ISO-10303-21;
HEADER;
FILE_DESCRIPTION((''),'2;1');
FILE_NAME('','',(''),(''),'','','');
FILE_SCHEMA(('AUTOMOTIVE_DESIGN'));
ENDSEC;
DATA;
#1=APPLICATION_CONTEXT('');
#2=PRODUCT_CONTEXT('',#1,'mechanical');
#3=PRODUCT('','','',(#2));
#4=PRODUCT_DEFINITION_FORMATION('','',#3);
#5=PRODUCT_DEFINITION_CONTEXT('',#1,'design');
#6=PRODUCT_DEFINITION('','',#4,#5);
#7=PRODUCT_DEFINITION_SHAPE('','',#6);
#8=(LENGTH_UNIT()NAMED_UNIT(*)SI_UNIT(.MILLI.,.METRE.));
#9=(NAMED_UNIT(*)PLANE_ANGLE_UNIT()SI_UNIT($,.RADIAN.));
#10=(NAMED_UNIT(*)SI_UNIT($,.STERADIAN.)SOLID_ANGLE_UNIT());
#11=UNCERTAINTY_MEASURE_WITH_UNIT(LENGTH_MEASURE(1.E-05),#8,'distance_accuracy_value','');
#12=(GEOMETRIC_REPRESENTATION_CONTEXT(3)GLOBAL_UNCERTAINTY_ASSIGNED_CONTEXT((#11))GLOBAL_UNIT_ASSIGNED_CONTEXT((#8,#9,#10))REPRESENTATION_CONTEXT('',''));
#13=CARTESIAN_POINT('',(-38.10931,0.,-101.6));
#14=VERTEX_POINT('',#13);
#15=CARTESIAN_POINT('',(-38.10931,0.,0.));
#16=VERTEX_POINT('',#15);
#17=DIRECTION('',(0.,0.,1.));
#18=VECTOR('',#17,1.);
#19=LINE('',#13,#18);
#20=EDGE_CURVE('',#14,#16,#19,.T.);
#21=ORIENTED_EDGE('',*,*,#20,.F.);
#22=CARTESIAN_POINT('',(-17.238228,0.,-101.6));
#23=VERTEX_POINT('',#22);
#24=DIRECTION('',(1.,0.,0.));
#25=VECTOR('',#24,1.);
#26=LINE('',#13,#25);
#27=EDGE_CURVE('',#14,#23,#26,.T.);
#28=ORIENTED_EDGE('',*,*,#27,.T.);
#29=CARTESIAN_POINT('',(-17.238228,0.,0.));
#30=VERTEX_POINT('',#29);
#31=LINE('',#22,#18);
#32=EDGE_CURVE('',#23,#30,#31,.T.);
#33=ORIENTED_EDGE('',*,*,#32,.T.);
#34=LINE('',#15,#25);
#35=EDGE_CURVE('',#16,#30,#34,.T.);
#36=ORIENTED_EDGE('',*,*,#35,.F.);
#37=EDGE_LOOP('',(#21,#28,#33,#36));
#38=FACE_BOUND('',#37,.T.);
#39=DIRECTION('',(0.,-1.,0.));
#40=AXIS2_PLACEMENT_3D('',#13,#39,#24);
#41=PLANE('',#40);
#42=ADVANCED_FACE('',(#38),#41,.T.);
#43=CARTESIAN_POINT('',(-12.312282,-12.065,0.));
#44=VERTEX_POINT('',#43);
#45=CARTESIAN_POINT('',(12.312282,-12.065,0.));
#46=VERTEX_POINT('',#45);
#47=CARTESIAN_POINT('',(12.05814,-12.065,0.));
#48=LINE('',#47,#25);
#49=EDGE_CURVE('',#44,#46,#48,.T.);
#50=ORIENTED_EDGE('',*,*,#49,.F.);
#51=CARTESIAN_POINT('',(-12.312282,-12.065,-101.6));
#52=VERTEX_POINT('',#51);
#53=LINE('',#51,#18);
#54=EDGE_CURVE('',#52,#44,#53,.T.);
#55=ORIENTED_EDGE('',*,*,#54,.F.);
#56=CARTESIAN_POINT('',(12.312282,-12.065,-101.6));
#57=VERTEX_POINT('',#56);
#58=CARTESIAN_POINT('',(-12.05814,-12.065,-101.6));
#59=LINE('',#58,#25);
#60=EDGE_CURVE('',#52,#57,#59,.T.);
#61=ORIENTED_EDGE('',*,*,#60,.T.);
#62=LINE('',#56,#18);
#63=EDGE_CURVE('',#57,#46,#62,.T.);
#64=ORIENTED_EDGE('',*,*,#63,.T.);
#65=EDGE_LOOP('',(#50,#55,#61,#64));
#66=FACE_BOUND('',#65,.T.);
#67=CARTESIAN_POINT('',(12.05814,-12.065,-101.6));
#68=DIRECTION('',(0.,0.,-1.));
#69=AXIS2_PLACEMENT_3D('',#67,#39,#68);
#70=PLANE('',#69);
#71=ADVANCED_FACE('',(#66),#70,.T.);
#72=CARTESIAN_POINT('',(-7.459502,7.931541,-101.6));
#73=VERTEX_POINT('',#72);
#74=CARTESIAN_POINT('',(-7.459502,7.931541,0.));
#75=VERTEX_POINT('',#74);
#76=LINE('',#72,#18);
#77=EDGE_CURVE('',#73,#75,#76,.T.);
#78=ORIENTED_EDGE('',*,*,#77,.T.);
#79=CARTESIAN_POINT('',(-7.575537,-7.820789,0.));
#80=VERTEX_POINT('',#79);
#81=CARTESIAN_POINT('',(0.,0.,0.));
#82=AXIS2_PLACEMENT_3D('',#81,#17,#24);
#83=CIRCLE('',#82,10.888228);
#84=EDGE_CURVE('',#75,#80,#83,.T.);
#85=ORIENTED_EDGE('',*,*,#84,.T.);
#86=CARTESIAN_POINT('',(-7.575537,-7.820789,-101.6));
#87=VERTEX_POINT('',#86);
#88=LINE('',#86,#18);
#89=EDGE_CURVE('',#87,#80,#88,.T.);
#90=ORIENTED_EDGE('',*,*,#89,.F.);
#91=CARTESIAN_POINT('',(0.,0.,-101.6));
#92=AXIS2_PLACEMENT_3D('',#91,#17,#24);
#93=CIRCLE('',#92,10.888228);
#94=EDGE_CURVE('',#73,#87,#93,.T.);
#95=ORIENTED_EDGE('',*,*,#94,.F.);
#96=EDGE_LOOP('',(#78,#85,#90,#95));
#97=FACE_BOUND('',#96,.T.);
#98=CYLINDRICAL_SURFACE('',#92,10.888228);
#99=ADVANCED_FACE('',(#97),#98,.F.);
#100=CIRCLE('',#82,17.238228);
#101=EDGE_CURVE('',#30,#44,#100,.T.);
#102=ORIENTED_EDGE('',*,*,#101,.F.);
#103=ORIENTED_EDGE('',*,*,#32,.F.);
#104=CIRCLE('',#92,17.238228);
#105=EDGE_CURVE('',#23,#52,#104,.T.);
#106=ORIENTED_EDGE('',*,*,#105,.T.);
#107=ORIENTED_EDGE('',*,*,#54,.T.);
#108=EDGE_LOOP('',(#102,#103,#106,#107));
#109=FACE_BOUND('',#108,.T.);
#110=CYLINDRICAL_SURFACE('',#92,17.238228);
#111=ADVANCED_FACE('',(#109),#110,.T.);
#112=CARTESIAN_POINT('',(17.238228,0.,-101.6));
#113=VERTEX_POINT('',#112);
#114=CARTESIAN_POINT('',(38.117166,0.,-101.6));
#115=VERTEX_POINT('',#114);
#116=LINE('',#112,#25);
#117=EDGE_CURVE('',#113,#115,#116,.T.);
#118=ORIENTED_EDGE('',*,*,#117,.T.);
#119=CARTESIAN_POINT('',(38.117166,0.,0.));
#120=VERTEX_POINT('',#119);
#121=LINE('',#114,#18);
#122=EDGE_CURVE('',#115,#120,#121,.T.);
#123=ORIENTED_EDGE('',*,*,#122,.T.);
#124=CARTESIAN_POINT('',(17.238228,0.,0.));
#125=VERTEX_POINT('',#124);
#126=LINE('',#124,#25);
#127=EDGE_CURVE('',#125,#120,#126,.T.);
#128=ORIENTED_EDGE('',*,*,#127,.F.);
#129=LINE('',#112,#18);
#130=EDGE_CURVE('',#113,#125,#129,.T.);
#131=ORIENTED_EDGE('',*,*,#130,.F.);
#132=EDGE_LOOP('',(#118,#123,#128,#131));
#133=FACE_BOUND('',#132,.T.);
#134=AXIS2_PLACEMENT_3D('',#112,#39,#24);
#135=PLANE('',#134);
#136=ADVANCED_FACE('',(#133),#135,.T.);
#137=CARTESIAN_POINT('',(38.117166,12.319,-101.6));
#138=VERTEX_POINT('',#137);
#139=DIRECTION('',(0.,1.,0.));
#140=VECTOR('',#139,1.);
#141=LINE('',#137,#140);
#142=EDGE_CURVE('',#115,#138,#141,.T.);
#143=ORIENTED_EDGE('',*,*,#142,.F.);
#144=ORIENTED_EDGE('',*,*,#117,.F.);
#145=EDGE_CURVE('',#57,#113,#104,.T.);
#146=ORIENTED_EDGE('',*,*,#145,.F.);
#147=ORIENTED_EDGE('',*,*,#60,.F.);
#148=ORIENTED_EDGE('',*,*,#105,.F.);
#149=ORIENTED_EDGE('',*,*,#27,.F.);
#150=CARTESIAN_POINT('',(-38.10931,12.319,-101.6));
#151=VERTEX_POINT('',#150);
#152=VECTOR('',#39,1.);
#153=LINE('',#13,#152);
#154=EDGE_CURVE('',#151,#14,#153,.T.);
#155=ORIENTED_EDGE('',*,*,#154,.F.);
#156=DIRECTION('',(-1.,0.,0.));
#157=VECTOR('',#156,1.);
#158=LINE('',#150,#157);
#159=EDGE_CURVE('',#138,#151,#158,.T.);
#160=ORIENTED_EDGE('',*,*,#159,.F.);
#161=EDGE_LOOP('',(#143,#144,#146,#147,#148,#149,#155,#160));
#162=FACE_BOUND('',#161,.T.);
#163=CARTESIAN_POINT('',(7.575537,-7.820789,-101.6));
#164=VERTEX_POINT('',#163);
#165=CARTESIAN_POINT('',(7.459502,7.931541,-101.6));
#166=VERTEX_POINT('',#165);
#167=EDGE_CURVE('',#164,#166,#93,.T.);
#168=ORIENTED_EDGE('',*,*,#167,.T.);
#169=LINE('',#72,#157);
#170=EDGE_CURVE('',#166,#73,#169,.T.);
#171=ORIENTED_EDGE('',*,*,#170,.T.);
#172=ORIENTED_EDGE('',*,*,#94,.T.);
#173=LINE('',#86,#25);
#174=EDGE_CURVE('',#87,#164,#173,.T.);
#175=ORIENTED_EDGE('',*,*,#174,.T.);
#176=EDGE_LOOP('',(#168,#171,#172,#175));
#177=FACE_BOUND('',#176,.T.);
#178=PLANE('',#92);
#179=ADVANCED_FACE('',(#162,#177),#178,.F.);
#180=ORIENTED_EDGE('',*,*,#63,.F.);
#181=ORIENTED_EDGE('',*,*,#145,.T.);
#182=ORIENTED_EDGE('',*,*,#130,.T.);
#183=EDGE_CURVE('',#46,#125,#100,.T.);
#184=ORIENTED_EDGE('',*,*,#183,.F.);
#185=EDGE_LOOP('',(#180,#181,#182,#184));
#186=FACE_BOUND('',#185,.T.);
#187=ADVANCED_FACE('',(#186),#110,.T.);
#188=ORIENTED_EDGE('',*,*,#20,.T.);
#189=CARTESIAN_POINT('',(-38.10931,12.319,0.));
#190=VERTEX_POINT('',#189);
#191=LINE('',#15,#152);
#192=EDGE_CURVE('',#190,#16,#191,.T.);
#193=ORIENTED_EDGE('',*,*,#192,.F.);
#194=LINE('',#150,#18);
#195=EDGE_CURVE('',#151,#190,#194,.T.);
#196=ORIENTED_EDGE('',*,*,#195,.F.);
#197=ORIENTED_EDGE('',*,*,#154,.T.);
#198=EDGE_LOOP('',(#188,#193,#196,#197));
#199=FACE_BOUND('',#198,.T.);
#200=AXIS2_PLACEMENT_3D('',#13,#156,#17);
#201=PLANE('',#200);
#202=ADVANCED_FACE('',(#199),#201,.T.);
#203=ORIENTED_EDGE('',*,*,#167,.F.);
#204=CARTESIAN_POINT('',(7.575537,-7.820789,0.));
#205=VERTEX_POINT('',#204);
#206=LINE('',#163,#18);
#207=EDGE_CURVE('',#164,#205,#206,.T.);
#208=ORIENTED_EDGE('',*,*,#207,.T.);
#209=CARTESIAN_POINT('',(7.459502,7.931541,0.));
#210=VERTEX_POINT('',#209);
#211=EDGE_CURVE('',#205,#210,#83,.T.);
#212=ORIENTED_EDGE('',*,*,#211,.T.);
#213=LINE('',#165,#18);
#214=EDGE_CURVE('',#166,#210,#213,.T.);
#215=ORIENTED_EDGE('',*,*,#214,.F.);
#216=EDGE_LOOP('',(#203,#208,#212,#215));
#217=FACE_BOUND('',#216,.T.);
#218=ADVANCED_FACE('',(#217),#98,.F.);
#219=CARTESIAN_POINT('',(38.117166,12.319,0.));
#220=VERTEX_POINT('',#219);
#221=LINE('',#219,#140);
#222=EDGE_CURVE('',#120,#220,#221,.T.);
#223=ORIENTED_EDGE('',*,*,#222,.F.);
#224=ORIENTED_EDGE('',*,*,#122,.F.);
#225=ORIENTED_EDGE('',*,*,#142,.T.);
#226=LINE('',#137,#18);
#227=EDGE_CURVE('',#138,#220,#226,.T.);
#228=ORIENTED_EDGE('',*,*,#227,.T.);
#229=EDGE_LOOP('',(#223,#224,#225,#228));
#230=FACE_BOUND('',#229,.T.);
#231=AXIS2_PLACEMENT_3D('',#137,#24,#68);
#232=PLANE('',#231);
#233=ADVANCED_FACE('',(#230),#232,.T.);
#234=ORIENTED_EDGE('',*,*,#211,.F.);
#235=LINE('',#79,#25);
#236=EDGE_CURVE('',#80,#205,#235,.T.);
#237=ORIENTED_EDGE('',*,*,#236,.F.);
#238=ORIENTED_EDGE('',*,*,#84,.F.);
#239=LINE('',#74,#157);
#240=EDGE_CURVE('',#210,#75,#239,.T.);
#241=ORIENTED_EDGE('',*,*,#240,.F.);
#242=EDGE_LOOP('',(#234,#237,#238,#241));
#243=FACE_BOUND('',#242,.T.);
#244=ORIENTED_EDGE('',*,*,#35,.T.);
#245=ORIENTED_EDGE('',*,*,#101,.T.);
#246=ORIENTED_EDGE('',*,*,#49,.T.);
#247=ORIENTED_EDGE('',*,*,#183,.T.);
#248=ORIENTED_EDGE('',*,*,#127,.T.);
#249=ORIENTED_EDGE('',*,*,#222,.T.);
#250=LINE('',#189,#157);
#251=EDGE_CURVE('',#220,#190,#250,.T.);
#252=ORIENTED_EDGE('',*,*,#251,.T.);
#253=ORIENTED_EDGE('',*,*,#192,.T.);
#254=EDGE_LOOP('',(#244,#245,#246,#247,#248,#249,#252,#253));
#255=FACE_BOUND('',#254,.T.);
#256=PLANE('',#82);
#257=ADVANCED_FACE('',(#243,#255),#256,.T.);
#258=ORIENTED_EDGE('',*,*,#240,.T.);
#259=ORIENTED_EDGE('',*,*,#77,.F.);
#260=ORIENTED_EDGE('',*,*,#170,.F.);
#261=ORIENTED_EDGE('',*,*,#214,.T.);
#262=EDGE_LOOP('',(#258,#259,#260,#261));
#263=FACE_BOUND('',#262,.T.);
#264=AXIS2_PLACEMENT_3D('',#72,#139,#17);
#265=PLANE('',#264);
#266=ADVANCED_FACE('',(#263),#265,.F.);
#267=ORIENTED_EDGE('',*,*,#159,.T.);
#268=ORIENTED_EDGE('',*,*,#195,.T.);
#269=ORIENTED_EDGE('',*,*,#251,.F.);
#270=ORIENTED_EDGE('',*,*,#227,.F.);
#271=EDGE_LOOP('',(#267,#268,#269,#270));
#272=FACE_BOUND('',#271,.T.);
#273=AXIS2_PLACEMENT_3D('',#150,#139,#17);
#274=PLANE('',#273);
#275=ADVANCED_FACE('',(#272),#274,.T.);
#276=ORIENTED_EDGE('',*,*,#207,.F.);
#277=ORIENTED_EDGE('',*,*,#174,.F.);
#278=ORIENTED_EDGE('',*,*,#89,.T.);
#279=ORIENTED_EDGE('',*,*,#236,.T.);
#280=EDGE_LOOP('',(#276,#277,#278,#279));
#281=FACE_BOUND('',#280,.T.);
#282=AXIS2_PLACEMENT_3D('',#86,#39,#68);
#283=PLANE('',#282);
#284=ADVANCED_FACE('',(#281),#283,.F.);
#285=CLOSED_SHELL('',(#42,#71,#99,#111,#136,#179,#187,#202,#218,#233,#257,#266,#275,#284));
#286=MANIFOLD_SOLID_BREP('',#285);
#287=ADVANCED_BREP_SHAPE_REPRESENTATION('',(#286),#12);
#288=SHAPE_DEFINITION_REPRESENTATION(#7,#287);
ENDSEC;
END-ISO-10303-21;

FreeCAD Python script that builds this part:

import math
import FreeCAD as App
import Part
import Sketcher
from FreeCAD import Vector
Q = App.Units.Quantity

doc = App.newDocument("Part")
body = doc.addObject("PartDesign::Body", "Body")

# Sketch on XY plane
sketch1 = body.newObject("Sketcher::SketchObject", "Sketch")
sketch1.AttachmentSupport = (doc.getObject("XY_Plane"), [""])
sketch1.MapMode = "FlatFace"
sketch1.addGeometry([
    Part.LineSegment(Vector(-38, 12, 0), Vector(-38, 0, 0)),  # 0
    Part.LineSegment(Vector(-38, 0, 0), Vector(-17, 0, 0)),  # 1
    Part.ArcOfCircle(Part.Circle(Vector(0, 0, 0), Vector(0, 0, 1), 17), math.radians(-180), math.radians(-136)),  # 2
    Part.LineSegment(Vector(-12, -12, 0), Vector(12, -12, 0)),  # 3
    Part.ArcOfCircle(Part.Circle(Vector(0, 0, 0), Vector(0, 0, 1), 17), math.radians(-44), math.radians(0)),  # 4
    Part.LineSegment(Vector(17, 0, 0), Vector(38, 0, 0)),  # 5
    Part.LineSegment(Vector(38, 0, 0), Vector(38, 12, 0)),  # 6
    Part.LineSegment(Vector(38, 12, 0), Vector(-38, 12, 0)),  # 7
    Part.LineSegment(Vector(-7, 8, 0), Vector(7, 8, 0)),  # 8
    Part.ArcOfCircle(Part.Circle(Vector(0, 0, 0), Vector(0, 0, 1), 11), math.radians(-46), math.radians(47)),  # 9
    Part.LineSegment(Vector(8, -8, 0), Vector(-8, -8, 0)),  # 10
    Part.ArcOfCircle(Part.Circle(Vector(0, 0, 0), Vector(0, 0, 1), 11), math.radians(133), math.radians(226)),  # 11
], False)
sketch1.addConstraint([
    Sketcher.Constraint("Coincident", 0, 2, 1, 1),
    Sketcher.Constraint("Coincident", 1, 2, 2, 1),
    Sketcher.Constraint("Coincident", 2, 2, 3, 1),
    Sketcher.Constraint("Coincident", 3, 2, 4, 1),
    Sketcher.Constraint("Coincident", 4, 2, 5, 1),
    Sketcher.Constraint("Coincident", 5, 2, 6, 1),
    Sketcher.Constraint("Coincident", 6, 2, 7, 1),
    Sketcher.Constraint("Coincident", 7, 2, 0, 1),
    Sketcher.Constraint("Coincident", 8, 2, 9, 2),
    Sketcher.Constraint("Coincident", 9, 1, 10, 1),
    Sketcher.Constraint("Coincident", 10, 2, 11, 2),
    Sketcher.Constraint("Coincident", 11, 1, 8, 1),
    Sketcher.Constraint("Vertical", 0),
    Sketcher.Constraint("Horizontal", 1),
    Sketcher.Constraint("Horizontal", 3),
    Sketcher.Constraint("Horizontal", 5),
    Sketcher.Constraint("Vertical", 6),
    Sketcher.Constraint("Horizontal", 7),
    Sketcher.Constraint("Horizontal", 8),
    Sketcher.Constraint("Horizontal", 10),
    Sketcher.Constraint("Coincident", 2, 3, -1, 1),
    Sketcher.Constraint("Coincident", 4, 3, -1, 1),
    Sketcher.Constraint("Coincident", 9, 3, -1, 1),
    Sketcher.Constraint("Coincident", 11, 3, -1, 1),
    Sketcher.Constraint("Equal", 2, 4),
    Sketcher.Constraint("Equal", 9, 11),
    Sketcher.Constraint("PointOnObject", 0, 2, -1),
    Sketcher.Constraint("PointOnObject", 4, 2, -1),
    Sketcher.Constraint("DistanceY", 0, 2, 0, 1, Q("0.485 in")),
    Sketcher.Constraint("DistanceY", 3, 2, 6, 2, Q("0.96 in")),
    Sketcher.Constraint("Radius", 2, 17.238228),
    Sketcher.Constraint("Radius", 9, 10.888228),
    Sketcher.Constraint("DistanceX", -1, 1, 8, 2, 7.459502),
    Sketcher.Constraint("DistanceX", 1, 1, 1, 2, 20.871083),
    Sketcher.Constraint("DistanceX", 5, 1, 5, 2, 20.878938),
    Sketcher.Constraint("DistanceX", 10, 2, 10, 1, 15.151074),
])
pad1 = body.newObject("PartDesign::Pad", "Pad")
pad1.Profile = sketch1
pad1.Length = Q("4 in")
pad1.Reversed = True

doc.recompute()
